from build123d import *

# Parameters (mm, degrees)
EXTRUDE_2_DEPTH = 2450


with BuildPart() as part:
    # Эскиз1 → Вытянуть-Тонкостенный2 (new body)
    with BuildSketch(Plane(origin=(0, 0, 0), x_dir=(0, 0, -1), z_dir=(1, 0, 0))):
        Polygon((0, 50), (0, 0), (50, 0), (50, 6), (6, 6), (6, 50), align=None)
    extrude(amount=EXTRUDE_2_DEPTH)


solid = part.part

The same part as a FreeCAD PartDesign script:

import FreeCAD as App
import Part
import Sketcher
from FreeCAD import Vector


def add_polygon(sketch, points):
    """Adds a closed chain of lines whose ends are joined by coincident constraints."""
    first, n = sketch.GeometryCount, len(points)
    for a, b in zip(points, points[1:] + points[:1]):
        sketch.addGeometry(Part.LineSegment(App.Vector(*a, 0), App.Vector(*b, 0)), False)
    for i in range(n):
        sketch.addConstraint(Sketcher.Constraint("Coincident", first + i, 2, first + (i + 1) % n, 1))

doc = App.newDocument("Part")
body = doc.addObject("PartDesign::Body", "Body")

# Sketch on YZ plane
sketch1 = body.newObject("Sketcher::SketchObject", "Sketch")
sketch1.AttachmentSupport = (doc.getObject("YZ_Plane"), [""])
sketch1.MapMode = "FlatFace"
add_polygon(sketch1, [(50, 0), (0, 0), (0, -50), (6, -50), (6, -6), (50, -6)])  # lines 0-5
sketch1.addConstraint(Sketcher.Constraint("Horizontal", 0))
sketch1.addConstraint(Sketcher.Constraint("Vertical", 1))
sketch1.addConstraint(Sketcher.Constraint("Horizontal", 2))
sketch1.addConstraint(Sketcher.Constraint("Vertical", 3))
sketch1.addConstraint(Sketcher.Constraint("Horizontal", 4))
sketch1.addConstraint(Sketcher.Constraint("Vertical", 5))
sketch1.addConstraint(Sketcher.Constraint("Coincident", 0, 2, -1, 1))
sketch1.addConstraint(Sketcher.Constraint("Equal", 0, 1))
sketch1.addConstraint(Sketcher.Constraint("Equal", 4, 3))
sketch1.addConstraint(Sketcher.Constraint("DistanceX", 0, 2, 0, 1, 50.0))
sketch1.addConstraint(Sketcher.Constraint("DistanceX", 2, 1, 2, 2, 6.0))
pad1 = body.newObject("PartDesign::Pad", "Pad")
pad1.Profile = sketch1
pad1.Length = 2450

doc.recompute()
